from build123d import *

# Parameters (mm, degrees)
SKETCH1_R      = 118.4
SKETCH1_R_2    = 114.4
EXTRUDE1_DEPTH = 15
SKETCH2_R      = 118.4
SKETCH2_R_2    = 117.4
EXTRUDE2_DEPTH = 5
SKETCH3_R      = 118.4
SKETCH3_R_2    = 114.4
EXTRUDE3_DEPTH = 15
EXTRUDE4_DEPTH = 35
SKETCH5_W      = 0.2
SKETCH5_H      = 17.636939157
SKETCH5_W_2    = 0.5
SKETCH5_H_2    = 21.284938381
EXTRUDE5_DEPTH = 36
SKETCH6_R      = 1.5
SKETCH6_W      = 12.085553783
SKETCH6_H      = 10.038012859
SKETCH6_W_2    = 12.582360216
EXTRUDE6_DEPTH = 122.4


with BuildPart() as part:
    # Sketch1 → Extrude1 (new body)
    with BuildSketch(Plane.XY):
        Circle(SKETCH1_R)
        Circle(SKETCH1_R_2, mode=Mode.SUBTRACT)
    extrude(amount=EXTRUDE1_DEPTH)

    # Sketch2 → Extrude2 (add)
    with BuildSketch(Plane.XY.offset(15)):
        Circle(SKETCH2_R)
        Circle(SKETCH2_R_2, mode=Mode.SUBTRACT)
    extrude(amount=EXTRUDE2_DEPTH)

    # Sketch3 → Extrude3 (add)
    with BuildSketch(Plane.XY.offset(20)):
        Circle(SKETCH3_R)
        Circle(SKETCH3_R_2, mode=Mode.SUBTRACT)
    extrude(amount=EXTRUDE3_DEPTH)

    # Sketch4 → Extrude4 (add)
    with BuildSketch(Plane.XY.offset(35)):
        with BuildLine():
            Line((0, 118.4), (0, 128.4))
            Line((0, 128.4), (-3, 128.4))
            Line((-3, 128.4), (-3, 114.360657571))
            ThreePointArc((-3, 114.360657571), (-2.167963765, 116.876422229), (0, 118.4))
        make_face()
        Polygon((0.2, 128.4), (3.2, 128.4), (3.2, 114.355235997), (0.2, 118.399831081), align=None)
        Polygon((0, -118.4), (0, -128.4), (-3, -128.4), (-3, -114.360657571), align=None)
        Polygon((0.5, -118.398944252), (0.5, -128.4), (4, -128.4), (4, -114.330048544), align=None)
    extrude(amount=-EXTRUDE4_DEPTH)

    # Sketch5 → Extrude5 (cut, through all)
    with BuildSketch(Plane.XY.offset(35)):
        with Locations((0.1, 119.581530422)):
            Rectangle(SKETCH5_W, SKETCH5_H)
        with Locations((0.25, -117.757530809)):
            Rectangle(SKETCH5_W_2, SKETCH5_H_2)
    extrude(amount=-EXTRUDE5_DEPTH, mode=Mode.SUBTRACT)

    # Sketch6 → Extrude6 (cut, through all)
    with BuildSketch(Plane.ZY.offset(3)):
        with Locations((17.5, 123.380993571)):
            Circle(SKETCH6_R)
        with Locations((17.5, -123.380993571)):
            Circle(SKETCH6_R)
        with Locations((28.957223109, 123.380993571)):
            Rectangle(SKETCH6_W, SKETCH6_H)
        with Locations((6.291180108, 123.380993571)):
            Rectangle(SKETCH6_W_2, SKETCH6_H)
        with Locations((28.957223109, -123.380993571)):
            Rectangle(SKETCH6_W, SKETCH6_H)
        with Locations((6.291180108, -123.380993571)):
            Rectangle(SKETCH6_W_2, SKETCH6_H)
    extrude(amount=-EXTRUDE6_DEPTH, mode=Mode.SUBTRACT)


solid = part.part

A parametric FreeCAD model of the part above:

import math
import FreeCAD as App
import Part
import Sketcher
from FreeCAD import Vector


def add_polygon(sketch, points):
    """Adds a closed chain of lines whose ends are joined by coincident constraints."""
    first, n = sketch.GeometryCount, len(points)
    for a, b in zip(points, points[1:] + points[:1]):
        sketch.addGeometry(Part.LineSegment(App.Vector(*a, 0), App.Vector(*b, 0)), False)
    for i in range(n):
        sketch.addConstraint(Sketcher.Constraint("Coincident", first + i, 2, first + (i + 1) % n, 1))

doc = App.newDocument("Part")
body = doc.addObject("PartDesign::Body", "Body")
body.AllowCompound = True

sketch1 = body.newObject("Sketcher::SketchObject", "Sketch")
sketch1.AttachmentSupport = (doc.getObject("XY_Plane"), [""])
sketch1.MapMode = "FlatFace"
sketch1.addGeometry([
    Part.Circle(Vector(0, 0, 0), Vector(0, 0, 1), 118.4),
    Part.Circle(Vector(0, 0, 0), Vector(0, 0, 1), 114.4),
], False)
sketch1.addConstraint([
    Sketcher.Constraint("Coincident", 0, 3, -1, 1),
    Sketcher.Constraint("Coincident", 1, 3, -1, 1),
    Sketcher.Constraint("Diameter", 0, 236.8),
    Sketcher.Constraint("Diameter", 1, 228.8),
])
pad1 = body.newObject("PartDesign::Pad", "Pad")
pad1.Profile = sketch1
pad1.Length = 15

sketch2 = body.newObject("Sketcher::SketchObject", "Sketch001")
sketch2.AttachmentSupport = (doc.getObject("XY_Plane"), [""])
sketch2.MapMode = "FlatFace"
sketch2.AttachmentOffset = App.Placement(Vector(0, 0, 15), App.Rotation())
sketch2.addGeometry([
    Part.Circle(Vector(0, 0, 0), Vector(0, 0, 1), 118.4),
    Part.Circle(Vector(0, 0, 0), Vector(0, 0, 1), 117.4),
], False)
sketch2.addConstraint([
    Sketcher.Constraint("Coincident", 0, 3, -1, 1),
    Sketcher.Constraint("Coincident", 1, 3, -1, 1),
    Sketcher.Constraint("Diameter", 0, 236.8),
    Sketcher.Constraint("Diameter", 1, 234.8),
])
pad2 = body.newObject("PartDesign::Pad", "Pad001")
pad2.Profile = sketch2
pad2.Length = 5

sketch3 = body.newObject("Sketcher::SketchObject", "Sketch002")
sketch3.AttachmentSupport = (doc.getObject("XY_Plane"), [""])
sketch3.MapMode = "FlatFace"
sketch3.AttachmentOffset = App.Placement(Vector(0, 0, 20), App.Rotation())
sketch3.addGeometry([
    Part.Circle(Vector(0, 0, 0), Vector(0, 0, 1), 118.4),
    Part.Circle(Vector(0, 0, 0), Vector(0, 0, 1), 114.4),
], False)
sketch3.addConstraint([
    Sketcher.Constraint("Coincident", 0, 3, -1, 1),
    Sketcher.Constraint("Coincident", 1, 3, -1, 1),
    Sketcher.Constraint("Diameter", 0, 236.8),
    Sketcher.Constraint("Diameter", 1, 228.8),
])
pad3 = body.newObject("PartDesign::Pad", "Pad002")
pad3.Profile = sketch3
pad3.Length = 15

sketch4 = body.newObject("Sketcher::SketchObject", "Sketch003")
sketch4.AttachmentSupport = (doc.getObject("XY_Plane"), [""])
sketch4.MapMode = "FlatFace"
sketch4.AttachmentOffset = App.Placement(Vector(0, 0, 35), App.Rotation())
sketch4.addGeometry(Part.LineSegment(Vector(0, 118.4, 0), Vector(0, 128.4, 0)), False)
sketch4.addGeometry(Part.LineSegment(Vector(0, 128.4, 0), Vector(-3, 128.4, 0)), False)
sketch4.addGeometry(Part.LineSegment(Vector(-3, 128.4, 0), Vector(-3, 114.360658, 0)), False)
sketch4.addGeometry(Part.ArcOfCircle(Part.Circle(Vector(1.219381, 114.360658, 0), Vector(0, 0, 1), 4.219381), math.radians(106.797814), math.radians(180)), False)
add_polygon(sketch4, [(3.2, 128.4), (0.2, 128.4), (0.2, 118.399831), (3.2, 114.355236)])
add_polygon(sketch4, [(0, -128.4), (0, -118.4), (-3, -114.360658), (-3, -128.4)])
add_polygon(sketch4, [(0.5, -118.398944), (0.5, -128.4), (4, -128.4), (4, -114.330049)])
sketch4.addConstraint([
    Sketcher.Constraint("Coincident", 0, 2, 1, 1),
    Sketcher.Constraint("Coincident", 1, 2, 2, 1),
    Sketcher.Constraint("Tangent", 2, 2, 3, 2),
    Sketcher.Constraint("Coincident", 3, 1, 0, 1),
    Sketcher.Constraint("Vertical", 0),
    Sketcher.Constraint("Horizontal", 1),
    Sketcher.Constraint("Vertical", 2),
    Sketcher.Constraint("Horizontal", 4),
    Sketcher.Constraint("Vertical", 5),
    Sketcher.Constraint("Vertical", 7),
    Sketcher.Constraint("Vertical", 8),
    Sketcher.Constraint("Vertical", 10),
    Sketcher.Constraint("Horizontal", 11),
    Sketcher.Constraint("Vertical", 12),
    Sketcher.Constraint("Horizontal", 13),
    Sketcher.Constraint("Vertical", 14),
    Sketcher.Constraint("Symmetric", 3, 1, 8, 2, -1, 1),
    Sketcher.Constraint("Symmetric", 2, 2, 9, 2, -1),
    Sketcher.Constraint("Symmetric", 0, 2, 11, 2, -1),
    Sketcher.Constraint("Horizontal", 1, 2, 4, 2),
    Sketcher.Constraint("Horizontal", 11, 2, 12, 2),
    Sketcher.Constraint("Equal", 1, 4),
    Sketcher.Constraint("DistanceX", 1, 2, 1, 1, 3.0),
    Sketcher.Constraint("DistanceY", 0, 1, 0, 2, 10.0),
    Sketcher.Constraint("DistanceX", 13, 1, 13, 2, 3.5),
    Sketcher.Constraint("DistanceX", -1, 1, 13, 2, 4.0),
    Sketcher.Constraint("DistanceY", -1, 1, 0, 2, 128.4),
    Sketcher.Constraint("DistanceX", -1, 1, 4, 2, 0.2),
    Sketcher.Constraint("Radius", 3, 4.219381),
    Sketcher.Constraint("DistanceY", 5, 2, 5, 1, 10.000169),
    Sketcher.Constraint("DistanceY", 14, 1, 14, 2, 14.069951),
    Sketcher.Constraint("DistanceY", 7, 1, 7, 2, 14.044764),
    Sketcher.Constraint("DistanceY", 12, 2, 12, 1, 10.001056),
])
pad4 = body.newObject("PartDesign::Pad", "Pad003")
pad4.Profile = sketch4
pad4.Length = 35
pad4.Reversed = True

sketch5 = body.newObject("Sketcher::SketchObject", "Sketch004")
sketch5.AttachmentSupport = (doc.getObject("XY_Plane"), [""])
sketch5.MapMode = "FlatFace"
sketch5.AttachmentOffset = App.Placement(Vector(0, 0, 35), App.Rotation())
add_polygon(sketch5, [(0, 128.4), (0, 110.763061), (0.2, 110.763061), (0.2, 128.4)])
add_polygon(sketch5, [(0, -107.115062), (0, -128.4), (0.5, -128.4), (0.5, -107.115062)])
sketch5.addConstraint([
    Sketcher.Constraint("Vertical", 0),
    Sketcher.Constraint("Horizontal", 1),
    Sketcher.Constraint("Vertical", 2),
    Sketcher.Constraint("Horizontal", 3),
    Sketcher.Constraint("Vertical", 4),
    Sketcher.Constraint("Horizontal", 5),
    Sketcher.Constraint("Vertical", 6),
    Sketcher.Constraint("Horizontal", 7),
    Sketcher.Constraint("Symmetric", 3, 2, 4, 2, -1, 1),
    Sketcher.Constraint("PointOnObject", 0, 2, -2),
    Sketcher.Constraint("DistanceX", 1, 1, 1, 2, 0.2),
    Sketcher.Constraint("DistanceX", 5, 1, 5, 2, 0.5),
    Sketcher.Constraint("DistanceY", -1, 1, 2, 2, 128.4),
    Sketcher.Constraint("DistanceY", 0, 2, 0, 1, 17.636939),
    Sketcher.Constraint("DistanceY", 4, 2, 4, 1, 21.284938),
])
pocket1 = body.newObject("PartDesign::Pocket", "Pocket")
pocket1.Profile = sketch5
pocket1.Type = "ThroughAll"

sketch6 = body.newObject("Sketcher::SketchObject", "Sketch005")
sketch6.AttachmentSupport = (doc.getObject("YZ_Plane"), [""])
sketch6.MapMode = "FlatFace"
sketch6.AttachmentOffset = App.Placement(Vector(0, 0, -3), App.Rotation())
sketch6.addGeometry(Part.Circle(Vector(123.380994, 17.5, 0), Vector(0, 0, 1), 1.5), False)
sketch6.addGeometry(Part.Circle(Vector(-123.380994, 17.5, 0), Vector(0, 0, 1), 1.5), False)
add_polygon(sketch6, [(128.4, 22.914446), (118.361987, 22.914446), (118.361987, 35), (128.4, 35)])
add_polygon(sketch6, [(128.4, 0), (118.361987, 0), (118.361987, 12.58236), (128.4, 12.58236)])
add_polygon(sketch6, [(-118.361987, 22.914446), (-128.4, 22.914446), (-128.4, 35), (-118.361987, 35)])
add_polygon(sketch6, [(-118.361987, 0), (-128.4, 0), (-128.4, 12.58236), (-118.361987, 12.58236)])
sketch6.addConstraint([
    Sketcher.Constraint("Horizontal", 2),
    Sketcher.Constraint("Vertical", 3),
    Sketcher.Constraint("Horizontal", 4),
    Sketcher.Constraint("Vertical", 5),
    Sketcher.Constraint("Horizontal", 6),
    Sketcher.Constraint("Vertical", 7),
    Sketcher.Constraint("Horizontal", 8),
    Sketcher.Constraint("Vertical", 9),
    Sketcher.Constraint("Horizontal", 10),
    Sketcher.Constraint("Vertical", 11),
    Sketcher.Constraint("Horizontal", 12),
    Sketcher.Constraint("Vertical", 13),
    Sketcher.Constraint("Horizontal", 14),
    Sketcher.Constraint("Vertical", 15),
    Sketcher.Constraint("Horizontal", 16),
    Sketcher.Constraint("Vertical", 17),
    Sketcher.Constraint("Equal", 0, 1),
    Sketcher.Constraint("Symmetric", 9, 2, 14, 2, -1, 1),
    Sketcher.Constraint("Symmetric", 0, 3, 1, 3, -2),
    Sketcher.Constraint("Symmetric", 5, 2, 10, 2, -2),
    Sketcher.Constraint("Symmetric", 3, 2, 12, 2, -2),
    Sketcher.Constraint("Symmetric", 7, 2, 16, 2, -2),
    Sketcher.Constraint("PointOnObject", 6, 2, -1),
    Sketcher.Constraint("Vertical", 3, 2, 6, 2),
    Sketcher.Constraint("Vertical", 5, 2, 8, 2),
    Sketcher.Constraint("Diameter", 0, 3.0),
    Sketcher.Constraint("DistanceY", -1, 1, 3, 2, 35.0),
    Sketcher.Constraint("DistanceY", -1, 1, 0, 3, 17.5),
    Sketcher.Constraint("DistanceX", -1, 1, 4, 2, 128.4),
    Sketcher.Constraint("DistanceY", 7, 1, 7, 2, 12.58236),
    Sketcher.Constraint("DistanceX", 2, 2, 2, 1, 10.038013),
    Sketcher.Constraint("DistanceY", 3, 1, 3, 2, 12.085554),
    Sketcher.Constraint("DistanceX", 1, 3, 2, 2, 241.742981),
])
pocket2 = body.newObject("PartDesign::Pocket", "Pocket001")
pocket2.Profile = sketch6
pocket2.Type = "ThroughAll"
pocket2.Reversed = True

doc.recompute()
